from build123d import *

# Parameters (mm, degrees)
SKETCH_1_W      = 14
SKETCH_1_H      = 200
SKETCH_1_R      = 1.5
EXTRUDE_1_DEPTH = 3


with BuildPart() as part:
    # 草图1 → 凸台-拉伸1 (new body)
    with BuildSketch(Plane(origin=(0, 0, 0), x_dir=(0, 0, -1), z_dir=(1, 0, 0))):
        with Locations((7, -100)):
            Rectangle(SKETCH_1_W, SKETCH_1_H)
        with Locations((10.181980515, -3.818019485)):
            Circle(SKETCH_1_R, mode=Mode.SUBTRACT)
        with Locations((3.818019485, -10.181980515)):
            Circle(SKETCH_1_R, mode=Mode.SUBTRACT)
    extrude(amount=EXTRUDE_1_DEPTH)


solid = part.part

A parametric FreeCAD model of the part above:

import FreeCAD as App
import Part
import Sketcher
from FreeCAD import Vector

doc = App.newDocument("Part")
params = doc.addObject("Spreadsheet::Sheet", "Params")
for row, (alias, value) in enumerate([
    ("sketch1_diameter", "3 mm"),
    ("sketch1_width", "200 mm"),
    ("sketch1_height", "14 mm"),
    ("pad1_length", "3 mm"),
], start=1):
    params.set(f"A{row}", alias)
    params.set(f"B{row}", "=" + value)
    params.setAlias(f"B{row}", alias)

body = doc.addObject("PartDesign::Body", "Body")

# Sketch on YZ plane
sketch1 = body.newObject("Sketcher::SketchObject", "Sketch")
sketch1.AttachmentSupport = (doc.getObject("YZ_Plane"), [""])
sketch1.MapMode = "FlatFace"
sketch1.addGeometry(Part.LineSegment(Vector(0, 0, 0), Vector(-200, 0, 0)), False)
sketch1.addGeometry(Part.LineSegment(Vector(-200, 0, 0), Vector(-200, -14, 0)), False)
sketch1.addGeometry(Part.LineSegment(Vector(-200, -14, 0), Vector(0, -14, 0)), False)
sketch1.addGeometry(Part.LineSegment(Vector(0, -14, 0), Vector(0, 0, 0)), False)
sketch1.addGeometry(Part.Circle(Vector(-10.2, -3.8, 0), Vector(0, 0, 1), 1.5), False)
sketch1.addGeometry(Part.Circle(Vector(-3.8, -10.2, 0), Vector(0, 0, 1), 1.5), False)
sketch1.addConstraint(Sketcher.Constraint("Coincident", 0, 2, 1, 1))
sketch1.addConstraint(Sketcher.Constraint("Coincident", 1, 2, 2, 1))
sketch1.addConstraint(Sketcher.Constraint("Coincident", 2, 2, 3, 1))
sketch1.addConstraint(Sketcher.Constraint("Coincident", 3, 2, 0, 1))
sketch1.addConstraint(Sketcher.Constraint("Horizontal", 0))
sketch1.addConstraint(Sketcher.Constraint("Vertical", 1))
sketch1.addConstraint(Sketcher.Constraint("Horizontal", 2))
sketch1.addConstraint(Sketcher.Constraint("Vertical", 3))
sketch1.addConstraint(Sketcher.Constraint("Coincident", 3, 2, -1, 1))
sketch1.addConstraint(Sketcher.Constraint("Equal", 4, 5))
sketch1.addConstraint(Sketcher.Constraint("Diameter", 4, 3.0))
sketch1.addConstraint(Sketcher.Constraint("DistanceX", 0, 2, 0, 1, 200.0))
sketch1.addConstraint(Sketcher.Constraint("DistanceY", 1, 2, 1, 1, 14.0))
sketch1.addConstraint(Sketcher.Constraint("DistanceX", 4, 3, -1, 1, 10.181981))
sketch1.addConstraint(Sketcher.Constraint("DistanceY", 4, 3, -1, 1, 3.818019))
sketch1.addConstraint(Sketcher.Constraint("DistanceX", 5, 3, -1, 1, 3.818019))
sketch1.addConstraint(Sketcher.Constraint("DistanceY", 5, 3, -1, 1, 10.181981))
sketch1.setExpression("Constraints[10]", "Params.sketch1_diameter")
sketch1.setExpression("Constraints[11]", "Params.sketch1_width")
sketch1.setExpression("Constraints[12]", "Params.sketch1_height")
pad1 = body.newObject("PartDesign::Pad", "Pad")
pad1.Profile = sketch1
pad1.setExpression("Length", "Params.pad1_length")

doc.recompute()
